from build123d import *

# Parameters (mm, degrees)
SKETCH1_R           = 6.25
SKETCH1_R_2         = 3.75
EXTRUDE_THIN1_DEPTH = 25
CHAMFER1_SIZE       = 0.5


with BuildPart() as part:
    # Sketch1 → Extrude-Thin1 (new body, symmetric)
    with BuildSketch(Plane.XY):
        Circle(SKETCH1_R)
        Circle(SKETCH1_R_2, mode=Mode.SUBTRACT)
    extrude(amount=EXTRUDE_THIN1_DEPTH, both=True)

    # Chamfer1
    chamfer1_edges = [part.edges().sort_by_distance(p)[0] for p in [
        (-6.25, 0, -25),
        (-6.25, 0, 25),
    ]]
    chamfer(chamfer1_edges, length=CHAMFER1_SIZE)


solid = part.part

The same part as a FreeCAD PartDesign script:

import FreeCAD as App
import Part
import Sketcher

V = App.Vector
Q = App.Units.Quantity


def edges_at(feature, points):
    """Names of the edges that pass closest to the given points."""
    edges = feature.Shape.Edges
    near = lambda p: min(range(len(edges)), key=lambda i: edges[i].distToShape(Part.Vertex(*p))[0])
    return sorted({f"Edge{near(p) + 1}" for p in points})

doc = App.newDocument("Part")
body = doc.addObject("PartDesign::Body", "Body")

# Sketch on XY plane
sketch1 = doc.addObject("Sketcher::SketchObject", "Sketch")
body.addObject(sketch1)
sketch1.AttachmentSupport = (doc.XY_Plane, [""])
sketch1.MapMode = "FlatFace"
sketch1.addGeometry([
    Part.Circle(V(0, 0, 0), V(0, 0, 1), 6.2),
    Part.Circle(V(0, 0, 0), V(0, 0, 1), 3.8),
], False)
sketch1.addConstraint([
    Sketcher.Constraint("Coincident", 0, 3, -1, 1),
    Sketcher.Constraint("Coincident", 1, 3, -1, 1),
    Sketcher.Constraint("Diameter", 0, Q("12.5 mm")),
    Sketcher.Constraint("Diameter", 1, Q("7.5 mm")),
])
pad1 = doc.addObject("PartDesign::Pad", "Pad")
body.addObject(pad1)
pad1.Profile = sketch1
pad1.Length = 50
pad1.Midplane = True
doc.recompute()

chamfer = doc.addObject("PartDesign::Chamfer", "Chamfer")
body.addObject(chamfer)
chamfer.Base = (pad1, edges_at(pad1, [(-6.25, 0, -25), (-6.25, 0, 25)]))
chamfer.Size = 0.5

doc.recompute()
